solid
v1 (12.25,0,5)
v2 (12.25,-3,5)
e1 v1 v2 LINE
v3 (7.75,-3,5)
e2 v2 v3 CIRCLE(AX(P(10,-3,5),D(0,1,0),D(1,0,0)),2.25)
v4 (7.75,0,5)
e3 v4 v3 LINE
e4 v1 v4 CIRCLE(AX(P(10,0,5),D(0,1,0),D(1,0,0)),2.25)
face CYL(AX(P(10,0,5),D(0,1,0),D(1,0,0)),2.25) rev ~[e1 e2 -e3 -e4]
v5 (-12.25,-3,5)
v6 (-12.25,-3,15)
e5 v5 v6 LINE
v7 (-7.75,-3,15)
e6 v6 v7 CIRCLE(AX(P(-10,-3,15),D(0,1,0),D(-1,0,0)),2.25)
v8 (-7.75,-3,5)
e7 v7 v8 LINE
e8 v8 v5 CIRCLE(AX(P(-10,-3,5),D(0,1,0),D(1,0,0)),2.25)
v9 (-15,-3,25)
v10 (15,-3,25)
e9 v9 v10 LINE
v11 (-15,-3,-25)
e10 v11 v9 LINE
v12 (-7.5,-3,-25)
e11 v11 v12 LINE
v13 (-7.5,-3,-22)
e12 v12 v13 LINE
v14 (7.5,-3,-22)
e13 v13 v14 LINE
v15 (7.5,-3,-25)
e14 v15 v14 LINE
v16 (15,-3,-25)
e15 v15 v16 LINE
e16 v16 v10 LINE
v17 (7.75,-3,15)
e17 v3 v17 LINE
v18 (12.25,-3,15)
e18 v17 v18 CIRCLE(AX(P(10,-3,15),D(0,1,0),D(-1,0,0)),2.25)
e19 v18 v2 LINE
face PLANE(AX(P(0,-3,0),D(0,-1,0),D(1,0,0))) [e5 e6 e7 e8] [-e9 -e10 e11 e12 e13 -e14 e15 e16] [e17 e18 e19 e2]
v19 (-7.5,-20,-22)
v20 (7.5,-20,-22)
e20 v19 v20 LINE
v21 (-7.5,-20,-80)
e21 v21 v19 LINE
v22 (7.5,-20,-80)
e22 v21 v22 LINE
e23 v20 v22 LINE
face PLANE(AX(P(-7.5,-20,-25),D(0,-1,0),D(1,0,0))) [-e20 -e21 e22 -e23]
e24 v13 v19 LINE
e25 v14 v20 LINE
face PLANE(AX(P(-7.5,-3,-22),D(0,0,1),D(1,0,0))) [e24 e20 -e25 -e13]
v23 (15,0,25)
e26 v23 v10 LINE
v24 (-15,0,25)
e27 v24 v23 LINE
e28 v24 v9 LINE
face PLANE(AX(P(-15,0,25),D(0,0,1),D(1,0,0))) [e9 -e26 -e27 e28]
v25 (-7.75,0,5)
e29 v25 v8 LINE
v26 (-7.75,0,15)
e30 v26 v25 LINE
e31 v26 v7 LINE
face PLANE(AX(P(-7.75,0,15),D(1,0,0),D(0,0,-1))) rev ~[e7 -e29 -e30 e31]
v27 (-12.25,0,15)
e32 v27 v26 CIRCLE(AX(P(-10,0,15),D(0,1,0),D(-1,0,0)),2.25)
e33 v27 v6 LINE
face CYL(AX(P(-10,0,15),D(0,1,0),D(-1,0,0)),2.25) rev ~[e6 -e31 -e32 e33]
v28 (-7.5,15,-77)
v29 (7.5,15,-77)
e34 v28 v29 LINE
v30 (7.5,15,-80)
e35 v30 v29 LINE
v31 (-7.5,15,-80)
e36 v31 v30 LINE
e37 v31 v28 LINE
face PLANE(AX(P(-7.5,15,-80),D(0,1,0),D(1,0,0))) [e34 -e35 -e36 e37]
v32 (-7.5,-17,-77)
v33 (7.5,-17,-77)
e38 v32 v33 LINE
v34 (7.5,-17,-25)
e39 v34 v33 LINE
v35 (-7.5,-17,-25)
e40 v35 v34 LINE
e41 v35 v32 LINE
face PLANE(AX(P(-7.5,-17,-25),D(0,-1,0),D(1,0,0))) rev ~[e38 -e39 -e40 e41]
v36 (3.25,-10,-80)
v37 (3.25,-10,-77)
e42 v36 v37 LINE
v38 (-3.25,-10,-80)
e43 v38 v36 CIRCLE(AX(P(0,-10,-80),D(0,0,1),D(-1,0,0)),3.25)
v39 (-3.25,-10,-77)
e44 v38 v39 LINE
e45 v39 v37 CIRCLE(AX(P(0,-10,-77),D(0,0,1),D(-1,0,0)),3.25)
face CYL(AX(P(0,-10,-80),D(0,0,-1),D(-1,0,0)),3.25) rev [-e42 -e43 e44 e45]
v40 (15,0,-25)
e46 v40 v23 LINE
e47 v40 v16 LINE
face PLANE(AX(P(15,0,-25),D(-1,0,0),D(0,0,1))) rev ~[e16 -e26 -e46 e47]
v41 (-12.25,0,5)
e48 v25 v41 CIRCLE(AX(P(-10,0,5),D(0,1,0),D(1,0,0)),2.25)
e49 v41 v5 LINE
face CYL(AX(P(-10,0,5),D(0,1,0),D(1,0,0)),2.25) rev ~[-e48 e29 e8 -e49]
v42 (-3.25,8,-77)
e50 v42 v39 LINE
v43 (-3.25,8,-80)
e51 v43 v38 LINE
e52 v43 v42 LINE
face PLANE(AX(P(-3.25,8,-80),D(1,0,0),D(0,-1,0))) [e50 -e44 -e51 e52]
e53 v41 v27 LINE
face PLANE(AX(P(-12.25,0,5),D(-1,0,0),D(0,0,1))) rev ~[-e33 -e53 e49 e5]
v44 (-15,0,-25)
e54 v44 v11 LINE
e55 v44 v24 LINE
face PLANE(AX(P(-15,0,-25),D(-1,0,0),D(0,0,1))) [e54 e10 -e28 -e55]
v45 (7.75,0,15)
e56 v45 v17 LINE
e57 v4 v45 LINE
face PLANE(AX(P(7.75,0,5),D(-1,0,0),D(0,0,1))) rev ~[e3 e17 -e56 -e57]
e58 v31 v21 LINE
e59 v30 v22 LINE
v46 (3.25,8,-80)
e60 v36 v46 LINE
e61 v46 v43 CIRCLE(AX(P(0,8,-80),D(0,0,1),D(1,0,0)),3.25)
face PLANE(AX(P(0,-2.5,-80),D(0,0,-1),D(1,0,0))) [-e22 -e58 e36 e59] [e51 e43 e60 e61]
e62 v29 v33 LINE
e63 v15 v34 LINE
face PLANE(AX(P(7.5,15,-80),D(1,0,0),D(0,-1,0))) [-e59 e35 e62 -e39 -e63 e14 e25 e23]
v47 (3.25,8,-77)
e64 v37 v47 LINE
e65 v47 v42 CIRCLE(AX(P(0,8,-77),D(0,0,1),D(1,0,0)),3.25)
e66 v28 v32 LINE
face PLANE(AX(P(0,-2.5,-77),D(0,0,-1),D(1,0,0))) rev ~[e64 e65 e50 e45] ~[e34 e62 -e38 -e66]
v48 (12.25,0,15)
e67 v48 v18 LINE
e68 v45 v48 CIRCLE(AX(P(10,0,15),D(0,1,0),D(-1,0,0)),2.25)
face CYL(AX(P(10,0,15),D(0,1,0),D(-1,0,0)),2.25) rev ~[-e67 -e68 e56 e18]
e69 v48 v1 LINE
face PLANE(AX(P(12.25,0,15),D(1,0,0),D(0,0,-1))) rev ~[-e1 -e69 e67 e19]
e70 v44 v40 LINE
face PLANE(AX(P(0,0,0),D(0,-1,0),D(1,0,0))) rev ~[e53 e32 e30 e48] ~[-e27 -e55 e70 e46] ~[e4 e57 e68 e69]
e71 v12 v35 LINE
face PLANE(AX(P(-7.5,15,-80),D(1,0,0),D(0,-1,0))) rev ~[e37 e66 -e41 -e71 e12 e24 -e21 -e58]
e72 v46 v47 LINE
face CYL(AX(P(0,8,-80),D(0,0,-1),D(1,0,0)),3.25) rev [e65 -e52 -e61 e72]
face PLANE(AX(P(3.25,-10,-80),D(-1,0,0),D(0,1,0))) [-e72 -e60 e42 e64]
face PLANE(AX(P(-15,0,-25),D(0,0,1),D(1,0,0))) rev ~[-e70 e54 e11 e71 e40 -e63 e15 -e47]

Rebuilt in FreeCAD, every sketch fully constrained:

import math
import FreeCAD as App
import Part
import Sketcher

V = App.Vector
Q = App.Units.Quantity


def add_polygon(sketch, points):
    """Adds a closed chain of lines whose ends are joined by coincident constraints."""
    first, n = sketch.GeometryCount, len(points)
    for a, b in zip(points, points[1:] + points[:1]):
        sketch.addGeometry(Part.LineSegment(App.Vector(*a, 0), App.Vector(*b, 0)), False)
    for i in range(n):
        sketch.addConstraint(Sketcher.Constraint("Coincident", first + i, 2, first + (i + 1) % n, 1))

doc = App.newDocument("Part")
params = doc.addObject("Spreadsheet::Sheet", "Params")
for row, (alias, value) in enumerate([
    ("sketch1_width", "30 mm"),
    ("sketch1_height", "50 mm"),
    ("sketch1_height2", "10 mm"),
    ("sketch1_radius", "2.25 mm"),
    ("pad1_length", "3 mm"),
    ("sketch2_width", "15 mm"),
    ("sketch2_height", "3 mm"),
    ("pad2_length", "17 mm"),
    ("sketch3_width", "15 mm"),
    ("sketch3_height", "3 mm"),
    ("pad3_length", "55 mm"),
    ("sketch4_width", "15 mm"),
    ("sketch4_height", "35 mm"),
    ("sketch4_height2", "18 mm"),
    ("sketch4_radius", "3.25 mm"),
    ("pad4_length", "3 mm"),
], start=1):
    params.set(f"A{row}", alias)
    params.set(f"B{row}", "=" + value)
    params.setAlias(f"B{row}", alias)

body = doc.addObject("PartDesign::Body", "Body")

# Sketch on XZ plane
sketch1 = body.newObject("Sketcher::SketchObject", "Sketch")
sketch1.AttachmentSupport = (doc.getObject("XZ_Plane"), [""])
sketch1.MapMode = "FlatFace"
add_polygon(sketch1, [(-15, 25), (-15, -25), (15, -25), (15, 25)])  # lines 0-3
sketch1.addGeometry(Part.LineSegment(V(-12.25, 5, 0), V(-12.25, 15, 0)), False)  # 4
sketch1.addGeometry(Part.ArcOfCircle(Part.Circle(V(-10, 15, 0), V(0, 0, 1), 2.25), math.radians(0), math.radians(180)), False)  # 5
sketch1.addGeometry(Part.LineSegment(V(-7.75, 15, 0), V(-7.75, 5, 0)), False)  # 6
sketch1.addGeometry(Part.ArcOfCircle(Part.Circle(V(-10, 5, 0), V(0, 0, 1), 2.25), math.radians(180), math.radians(360)), False)  # 7
sketch1.addGeometry(Part.ArcOfCircle(Part.Circle(V(10, 15, 0), V(0, 0, 1), 2.25), math.radians(0), math.radians(180)), False)  # 8
sketch1.addGeometry(Part.LineSegment(V(12.25, 15, 0), V(12.25, 5, 0)), False)  # 9
sketch1.addGeometry(Part.ArcOfCircle(Part.Circle(V(10, 5, 0), V(0, 0, 1), 2.25), math.radians(180), math.radians(360)), False)  # 10
sketch1.addGeometry(Part.LineSegment(V(7.75, 5, 0), V(7.75, 15, 0)), False)  # 11
sketch1.addConstraint([
    Sketcher.Constraint("Tangent", 4, 2, 5, 2),
    Sketcher.Constraint("Tangent", 5, 1, 6, 1),
    Sketcher.Constraint("Tangent", 6, 2, 7, 2),
    Sketcher.Constraint("Tangent", 7, 1, 4, 1),
    Sketcher.Constraint("Tangent", 8, 1, 9, 1),
    Sketcher.Constraint("Tangent", 9, 2, 10, 2),
    Sketcher.Constraint("Tangent", 10, 1, 11, 1),
    Sketcher.Constraint("Tangent", 11, 2, 8, 2),
    Sketcher.Constraint("Vertical", 0),
    Sketcher.Constraint("Horizontal", 1),
    Sketcher.Constraint("Vertical", 2),
    Sketcher.Constraint("Horizontal", 3),
    Sketcher.Constraint("Vertical", 4),
    Sketcher.Constraint("Vertical", 6),
    Sketcher.Constraint("Vertical", 9),
    Sketcher.Constraint("Vertical", 11),
    Sketcher.Constraint("Equal", 7, 8),
    Sketcher.Constraint("Symmetric", 0, 2, 2, 2, -1, 1),
    Sketcher.Constraint("Symmetric", 5, 3, 8, 3, -2),
    Sketcher.Constraint("Horizontal", 7, 3, 10, 3),
    Sketcher.Constraint("DistanceX", 1, 1, 1, 2, Q("30 mm")),
    Sketcher.Constraint("DistanceY", 0, 2, 0, 1, Q("50 mm")),
    Sketcher.Constraint("DistanceY", 4, 1, 4, 2, Q("10 mm")),
    Sketcher.Constraint("Radius", 5, Q("2.25 mm")),
    Sketcher.Constraint("DistanceX", 5, 3, -1, 1, Q("10 mm")),
    Sketcher.Constraint("DistanceY", -1, 1, 5, 3, Q("15 mm")),
])
sketch1.setExpression("Constraints[24]", "Params.sketch1_width")
sketch1.setExpression("Constraints[25]", "Params.sketch1_height")
sketch1.setExpression("Constraints[26]", "Params.sketch1_height2")
sketch1.setExpression("Constraints[27]", "Params.sketch1_radius")
pad1 = body.newObject("PartDesign::Pad", "Pad")
pad1.Profile = sketch1
pad1.setExpression("Length", "Params.pad1_length")

# Sketch on XZ plane
sketch2 = body.newObject("Sketcher::SketchObject", "Sketch001")
sketch2.AttachmentSupport = (doc.getObject("XZ_Plane"), [""])
sketch2.MapMode = "FlatFace"
sketch2.AttachmentOffset = App.Placement(V(0, 0, 3), App.Rotation())
add_polygon(sketch2, [(-7.5, -22), (-7.5, -25), (7.5, -25), (7.5, -22)])  # lines 0-3
sketch2.addConstraint([
    Sketcher.Constraint("Vertical", 0),
    Sketcher.Constraint("Horizontal", 1),
    Sketcher.Constraint("Vertical", 2),
    Sketcher.Constraint("Horizontal", 3),
    Sketcher.Constraint("DistanceX", 1, 1, 1, 2, Q("15 mm")),
    Sketcher.Constraint("DistanceY", 0, 2, 0, 1, Q("3 mm")),
    Sketcher.Constraint("DistanceY", 0, 2, -1, 1, Q("25 mm")),
    Sketcher.Constraint("DistanceX", 0, 2, -1, 1, Q("7.5 mm")),
])
sketch2.setExpression("Constraints[8]", "Params.sketch2_width")
sketch2.setExpression("Constraints[9]", "Params.sketch2_height")
pad2 = body.newObject("PartDesign::Pad", "Pad001")
pad2.Profile = sketch2
pad2.setExpression("Length", "Params.pad2_length")

# Sketch on XY plane
sketch3 = body.newObject("Sketcher::SketchObject", "Sketch002")
sketch3.AttachmentSupport = (doc.getObject("XY_Plane"), [""])
sketch3.MapMode = "FlatFace"
sketch3.AttachmentOffset = App.Placement(V(0, 0, -25), App.Rotation())
add_polygon(sketch3, [(-7.5, -20), (-7.5, -17), (7.5, -17), (7.5, -20)])  # lines 0-3
sketch3.addConstraint([
    Sketcher.Constraint("Vertical", 0),
    Sketcher.Constraint("Horizontal", 1),
    Sketcher.Constraint("Vertical", 2),
    Sketcher.Constraint("Horizontal", 3),
    Sketcher.Constraint("DistanceX", 1, 1, 1, 2, Q("15 mm")),
    Sketcher.Constraint("DistanceY", 0, 1, 0, 2, Q("3 mm")),
    Sketcher.Constraint("DistanceY", 0, 2, -1, 1, Q("17 mm")),
    Sketcher.Constraint("DistanceX", 0, 2, -1, 1, Q("7.5 mm")),
])
sketch3.setExpression("Constraints[8]", "Params.sketch3_width")
sketch3.setExpression("Constraints[9]", "Params.sketch3_height")
pad3 = body.newObject("PartDesign::Pad", "Pad002")
pad3.Profile = sketch3
pad3.setExpression("Length", "Params.pad3_length")
pad3.Reversed = True

# Sketch on XY plane
sketch4 = body.newObject("Sketcher::SketchObject", "Sketch003")
sketch4.AttachmentSupport = (doc.getObject("XY_Plane"), [""])
sketch4.MapMode = "FlatFace"
sketch4.AttachmentOffset = App.Placement(V(0, 0, -80), App.Rotation())
add_polygon(sketch4, [(-7.5, -20), (-7.5, 15), (7.5, 15), (7.5, -20)])  # lines 0-3
sketch4.addGeometry(Part.LineSegment(V(-3.25, 8, 0), V(-3.25, -10, 0)), False)  # 4
sketch4.addGeometry(Part.ArcOfCircle(Part.Circle(V(0, -10, 0), V(0, 0, 1), 3.25), math.radians(180), math.radians(360)), False)  # 5
sketch4.addGeometry(Part.LineSegment(V(3.25, -10, 0), V(3.25, 8, 0)), False)  # 6
sketch4.addGeometry(Part.ArcOfCircle(Part.Circle(V(0, 8, 0), V(0, 0, 1), 3.25), math.radians(0), math.radians(180)), False)  # 7
sketch4.addConstraint([
    Sketcher.Constraint("Tangent", 4, 2, 5, 1),
    Sketcher.Constraint("Tangent", 5, 2, 6, 1),
    Sketcher.Constraint("Tangent", 6, 2, 7, 1),
    Sketcher.Constraint("Tangent", 7, 2, 4, 1),
    Sketcher.Constraint("Vertical", 0),
    Sketcher.Constraint("Horizontal", 1),
    Sketcher.Constraint("Vertical", 2),
    Sketcher.Constraint("Horizontal", 3),
    Sketcher.Constraint("Vertical", 4),
    Sketcher.Constraint("Vertical", 6),
    Sketcher.Constraint("PointOnObject", 5, 3, -2),
    Sketcher.Constraint("DistanceX", 1, 1, 1, 2, Q("15 mm")),
    Sketcher.Constraint("DistanceY", 0, 1, 0, 2, Q("35 mm")),
    Sketcher.Constraint("DistanceY", 4, 2, 4, 1, Q("18 mm")),
    Sketcher.Constraint("Radius", 5, Q("3.25 mm")),
    Sketcher.Constraint("DistanceY", 5, 3, -1, 1, Q("10 mm")),
    Sketcher.Constraint("DistanceY", -1, 1, 0, 2, Q("15 mm")),
    Sketcher.Constraint("DistanceX", 0, 2, -1, 1, Q("7.5 mm")),
])
sketch4.setExpression("Constraints[15]", "Params.sketch4_width")
sketch4.setExpression("Constraints[16]", "Params.sketch4_height")
sketch4.setExpression("Constraints[17]", "Params.sketch4_height2")
sketch4.setExpression("Constraints[18]", "Params.sketch4_radius")
pad4 = body.newObject("PartDesign::Pad", "Pad003")
pad4.Profile = sketch4
pad4.setExpression("Length", "Params.pad4_length")

doc.recompute()
